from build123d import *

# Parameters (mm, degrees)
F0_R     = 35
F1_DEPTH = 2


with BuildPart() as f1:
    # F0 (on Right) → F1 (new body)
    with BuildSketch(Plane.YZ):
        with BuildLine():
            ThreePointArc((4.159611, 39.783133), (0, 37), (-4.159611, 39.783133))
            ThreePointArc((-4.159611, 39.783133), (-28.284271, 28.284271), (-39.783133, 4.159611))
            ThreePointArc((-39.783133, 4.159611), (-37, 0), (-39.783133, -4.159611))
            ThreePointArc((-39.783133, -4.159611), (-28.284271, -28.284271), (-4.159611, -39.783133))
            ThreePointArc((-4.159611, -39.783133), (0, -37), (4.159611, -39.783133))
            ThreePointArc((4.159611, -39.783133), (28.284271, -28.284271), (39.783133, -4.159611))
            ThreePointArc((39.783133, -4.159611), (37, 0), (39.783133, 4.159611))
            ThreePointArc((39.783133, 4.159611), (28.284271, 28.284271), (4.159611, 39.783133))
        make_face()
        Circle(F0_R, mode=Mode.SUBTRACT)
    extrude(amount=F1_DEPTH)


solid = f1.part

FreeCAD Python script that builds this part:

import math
import FreeCAD as App
import Part
import Sketcher

V = App.Vector
Q = App.Units.Quantity

doc = App.newDocument("Part")
params = doc.addObject("Spreadsheet::Sheet", "Params")
for row, (alias, value) in enumerate([
    ("sketch1_diameter", "70 mm"),
    ("sketch1_radius", "4.499999 mm"),
    ("pad1_length", "2 mm"),
], start=1):
    params.set(f"A{row}", alias)
    params.set(f"B{row}", "=" + value)
    params.setAlias(f"B{row}", alias)

body = doc.addObject("PartDesign::Body", "Body")

sketch1 = doc.addObject("Sketcher::SketchObject", "Sketch")
body.addObject(sketch1)
sketch1.AttachmentSupport = (doc.YZ_Plane, [""])
sketch1.MapMode = "FlatFace"
sketch1.addGeometry([
    Part.ArcOfCircle(Part.Circle(V(0, 41.5, 0), V(0, 0, 1), 4.5), math.radians(-158), math.radians(-22)),
    Part.ArcOfCircle(Part.Circle(V(0, 0, 0), V(0, 0, 1), 40), math.radians(96), math.radians(174)),
    Part.ArcOfCircle(Part.Circle(V(-41.5, 0, 0), V(0, 0, 1), 4.5), math.radians(-68), math.radians(68)),
    Part.ArcOfCircle(Part.Circle(V(0, 0, 0), V(0, 0, 1), 40), math.radians(-174), math.radians(-96)),
    Part.ArcOfCircle(Part.Circle(V(0, -41.5, 0), V(0, 0, 1), 4.5), math.radians(22), math.radians(158)),
    Part.ArcOfCircle(Part.Circle(V(0, 0, 0), V(0, 0, 1), 40), math.radians(-84), math.radians(-6)),
    Part.ArcOfCircle(Part.Circle(V(41.5, 0, 0), V(0, 0, 1), 4.5), math.radians(112), math.radians(248)),
    Part.ArcOfCircle(Part.Circle(V(0, 0, 0), V(0, 0, 1), 40), math.radians(6), math.radians(84)),
    Part.Circle(V(0, 0, 0), V(0, 0, 1), 35),
], False)
sketch1.addConstraint([
    Sketcher.Constraint("Coincident", 0, 1, 1, 1),
    Sketcher.Constraint("Coincident", 1, 2, 2, 2),
    Sketcher.Constraint("Coincident", 2, 1, 3, 1),
    Sketcher.Constraint("Coincident", 3, 2, 4, 2),
    Sketcher.Constraint("Coincident", 4, 1, 5, 1),
    Sketcher.Constraint("Coincident", 5, 2, 6, 2),
    Sketcher.Constraint("Coincident", 6, 1, 7, 1),
    Sketcher.Constraint("Coincident", 7, 2, 0, 2),
    Sketcher.Constraint("Coincident", 1, 3, -1, 1),
    Sketcher.Constraint("Coincident", 3, 3, -1, 1),
    Sketcher.Constraint("Coincident", 5, 3, -1, 1),
    Sketcher.Constraint("Coincident", 7, 3, -1, 1),
    Sketcher.Constraint("Coincident", 8, 3, -1, 1),
    Sketcher.Constraint("Equal", 0, 2),
    Sketcher.Constraint("Equal", 1, 3),
    Sketcher.Constraint("Equal", 2, 4),
    Sketcher.Constraint("Equal", 3, 5),
    Sketcher.Constraint("Equal", 4, 6),
    Sketcher.Constraint("Equal", 5, 7),
    Sketcher.Constraint("Symmetric", 0, 3, 4, 3, -1, 1),
    Sketcher.Constraint("Symmetric", 2, 3, 6, 3, -1, 1),
    Sketcher.Constraint("PointOnObject", 0, 3, -2),
    Sketcher.Constraint("PointOnObject", 2, 3, -1),
    Sketcher.Constraint("Diameter", 8, Q("70 mm")),
    Sketcher.Constraint("Radius", 0, Q("4.499999 mm")),
    Sketcher.Constraint("DistanceY", 4, 3, 0, 3, Q("82.999999 mm")),
    Sketcher.Constraint("DistanceX", 2, 3, -1, 1, Q("41.499999 mm")),
    Sketcher.Constraint("Radius", 1, Q("40.000003 mm")),
])
sketch1.setExpression("Constraints[23]", "Params.sketch1_diameter")
sketch1.setExpression("Constraints[24]", "Params.sketch1_radius")
pad1 = doc.addObject("PartDesign::Pad", "Pad")
body.addObject(pad1)
pad1.Profile = sketch1
pad1.setExpression("Length", "Params.pad1_length")

doc.recompute()
